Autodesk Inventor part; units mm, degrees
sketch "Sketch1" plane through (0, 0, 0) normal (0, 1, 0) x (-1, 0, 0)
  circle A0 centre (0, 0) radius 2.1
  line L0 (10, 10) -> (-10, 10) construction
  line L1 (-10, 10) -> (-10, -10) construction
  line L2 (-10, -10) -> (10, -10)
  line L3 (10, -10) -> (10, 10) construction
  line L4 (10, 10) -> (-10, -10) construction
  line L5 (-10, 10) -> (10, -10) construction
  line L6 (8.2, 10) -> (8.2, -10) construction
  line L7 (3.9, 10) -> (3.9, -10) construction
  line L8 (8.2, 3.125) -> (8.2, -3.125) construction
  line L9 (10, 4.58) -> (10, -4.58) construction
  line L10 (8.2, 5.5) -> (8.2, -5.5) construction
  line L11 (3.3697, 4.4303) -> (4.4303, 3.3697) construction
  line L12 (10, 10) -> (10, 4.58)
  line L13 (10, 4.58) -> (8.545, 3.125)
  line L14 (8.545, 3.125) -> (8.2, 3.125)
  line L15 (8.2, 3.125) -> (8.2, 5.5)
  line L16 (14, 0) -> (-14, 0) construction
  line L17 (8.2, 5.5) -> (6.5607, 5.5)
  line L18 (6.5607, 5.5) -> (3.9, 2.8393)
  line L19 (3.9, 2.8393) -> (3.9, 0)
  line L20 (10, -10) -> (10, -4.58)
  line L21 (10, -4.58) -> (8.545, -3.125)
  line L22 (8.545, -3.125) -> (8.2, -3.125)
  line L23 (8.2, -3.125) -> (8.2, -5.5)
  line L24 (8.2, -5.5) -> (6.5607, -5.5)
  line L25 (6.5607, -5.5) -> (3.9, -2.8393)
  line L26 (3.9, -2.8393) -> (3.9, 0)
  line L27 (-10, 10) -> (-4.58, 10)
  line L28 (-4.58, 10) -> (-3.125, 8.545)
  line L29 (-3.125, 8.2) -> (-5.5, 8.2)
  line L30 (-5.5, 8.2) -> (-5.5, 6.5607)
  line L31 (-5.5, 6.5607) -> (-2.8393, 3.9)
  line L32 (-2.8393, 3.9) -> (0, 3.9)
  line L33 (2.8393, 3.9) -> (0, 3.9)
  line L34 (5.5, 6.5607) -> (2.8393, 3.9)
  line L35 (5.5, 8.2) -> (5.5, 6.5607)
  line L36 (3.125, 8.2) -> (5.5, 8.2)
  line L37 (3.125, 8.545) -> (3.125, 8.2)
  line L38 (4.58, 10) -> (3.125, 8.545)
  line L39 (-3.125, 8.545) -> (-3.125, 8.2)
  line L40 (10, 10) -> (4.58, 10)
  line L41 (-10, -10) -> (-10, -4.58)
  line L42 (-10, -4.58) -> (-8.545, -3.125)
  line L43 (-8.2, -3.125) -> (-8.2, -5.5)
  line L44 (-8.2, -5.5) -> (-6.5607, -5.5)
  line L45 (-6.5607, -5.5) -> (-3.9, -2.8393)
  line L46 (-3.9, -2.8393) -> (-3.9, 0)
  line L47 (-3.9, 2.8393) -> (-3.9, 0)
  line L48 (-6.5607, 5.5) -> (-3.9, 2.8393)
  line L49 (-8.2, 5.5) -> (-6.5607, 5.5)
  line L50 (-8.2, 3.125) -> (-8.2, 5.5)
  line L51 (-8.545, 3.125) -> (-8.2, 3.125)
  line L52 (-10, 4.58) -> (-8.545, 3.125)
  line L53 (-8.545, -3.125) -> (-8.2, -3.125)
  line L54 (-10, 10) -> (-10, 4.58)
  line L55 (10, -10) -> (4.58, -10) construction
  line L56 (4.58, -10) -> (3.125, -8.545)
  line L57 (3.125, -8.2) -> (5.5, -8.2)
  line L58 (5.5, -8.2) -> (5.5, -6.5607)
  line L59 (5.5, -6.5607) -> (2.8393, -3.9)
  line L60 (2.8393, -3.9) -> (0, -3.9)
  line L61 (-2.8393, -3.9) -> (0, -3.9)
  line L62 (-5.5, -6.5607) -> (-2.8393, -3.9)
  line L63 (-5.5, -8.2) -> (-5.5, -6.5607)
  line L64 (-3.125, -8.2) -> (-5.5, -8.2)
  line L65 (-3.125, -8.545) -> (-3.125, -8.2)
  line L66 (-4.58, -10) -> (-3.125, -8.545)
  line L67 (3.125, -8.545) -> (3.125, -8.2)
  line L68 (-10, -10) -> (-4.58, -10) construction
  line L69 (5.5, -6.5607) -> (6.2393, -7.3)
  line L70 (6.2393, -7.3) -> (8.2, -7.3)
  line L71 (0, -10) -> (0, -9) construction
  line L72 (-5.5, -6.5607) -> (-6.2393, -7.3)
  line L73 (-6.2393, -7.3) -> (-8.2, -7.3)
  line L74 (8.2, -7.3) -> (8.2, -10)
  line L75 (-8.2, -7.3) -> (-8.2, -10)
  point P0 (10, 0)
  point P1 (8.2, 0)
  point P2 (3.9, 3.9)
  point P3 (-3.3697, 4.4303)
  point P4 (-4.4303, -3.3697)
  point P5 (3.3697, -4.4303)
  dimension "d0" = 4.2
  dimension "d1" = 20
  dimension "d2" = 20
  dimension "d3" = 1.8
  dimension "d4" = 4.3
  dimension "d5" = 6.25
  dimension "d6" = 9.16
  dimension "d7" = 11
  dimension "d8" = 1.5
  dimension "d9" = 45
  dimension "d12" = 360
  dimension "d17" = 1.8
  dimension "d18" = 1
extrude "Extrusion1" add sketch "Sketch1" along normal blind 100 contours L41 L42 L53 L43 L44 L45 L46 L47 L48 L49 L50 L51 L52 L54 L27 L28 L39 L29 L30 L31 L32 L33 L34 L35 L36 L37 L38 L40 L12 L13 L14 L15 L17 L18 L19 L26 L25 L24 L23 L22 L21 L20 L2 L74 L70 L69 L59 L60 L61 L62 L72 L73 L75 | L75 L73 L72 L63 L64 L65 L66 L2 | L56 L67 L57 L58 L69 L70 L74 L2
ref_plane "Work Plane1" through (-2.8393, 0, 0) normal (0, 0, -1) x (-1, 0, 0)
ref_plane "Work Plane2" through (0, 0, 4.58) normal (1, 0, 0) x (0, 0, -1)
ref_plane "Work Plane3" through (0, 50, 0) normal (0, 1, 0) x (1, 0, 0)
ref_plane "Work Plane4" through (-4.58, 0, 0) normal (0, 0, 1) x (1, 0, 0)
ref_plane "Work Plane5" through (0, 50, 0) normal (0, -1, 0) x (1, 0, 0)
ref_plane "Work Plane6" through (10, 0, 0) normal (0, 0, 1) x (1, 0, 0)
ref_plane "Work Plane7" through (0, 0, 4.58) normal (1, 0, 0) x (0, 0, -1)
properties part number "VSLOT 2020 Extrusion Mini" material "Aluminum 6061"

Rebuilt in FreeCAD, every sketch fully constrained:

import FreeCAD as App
import Part
import Sketcher
from FreeCAD import Vector
Q = App.Units.Quantity


def add_polygon(sketch, points):
    """Adds a closed chain of lines whose ends are joined by coincident constraints."""
    first, n = sketch.GeometryCount, len(points)
    for a, b in zip(points, points[1:] + points[:1]):
        sketch.addGeometry(Part.LineSegment(App.Vector(*a, 0), App.Vector(*b, 0)), False)
    for i in range(n):
        sketch.addConstraint(Sketcher.Constraint("Coincident", first + i, 2, first + (i + 1) % n, 1))

doc = App.newDocument("Part")
body = doc.addObject("PartDesign::Body", "Body")

# Sketch on XZ plane
sketch1 = body.newObject("Sketcher::SketchObject", "Sketch")
sketch1.AttachmentSupport = (doc.getObject("XZ_Plane"), [""])
sketch1.MapMode = "FlatFace"
add_polygon(sketch1, [(10, -4.58), (10, -10), (4.58, -10), (3.125, -8.545), (3.125, -8.2), (5.5, -8.2), (5.5, -6.5607), (2.8393, -3.9), (-2.8393, -3.9), (-5.5, -6.5607), (-5.5, -8.2), (-3.125, -8.2), (-3.125, -8.545), (-4.58, -10), (-10, -10), (-10, -4.58), (-8.545, -3.125), (-8.2, -3.125), (-8.2, -5.5), (-6.5607, -5.5), (-3.9, -2.8393), (-3.9, 2.8393), (-6.5607, 5.5), (-8.2, 5.5), (-8.2, 3.125), (-8.545, 3.125), (-10, 4.58), (-10, 10), (-4.58, 10), (-3.125, 8.545), (-3.125, 8.2), (-5.5, 8.2), (-5.5, 6.5607), (-2.8393, 3.9), (2.8393, 3.9), (5.5, 6.5607), (5.5, 8.2), (3.125, 8.2), (3.125, 8.545), (4.58, 10), (10, 10), (10, 4.58), (8.545, 3.125), (8.2, 3.125), (8.2, 5.5), (6.5607, 5.5), (3.9, 2.8393), (3.9, -2.8393), (6.5607, -5.5), (8.2, -5.5), (8.2, -3.125), (8.545, -3.125)])  # lines 0-51
sketch1.addGeometry(Part.Circle(Vector(0, 0, 0), Vector(0, 0, 1), 2.1), False)  # 52
sketch1.addConstraint([
    Sketcher.Constraint("Vertical", 0),
    Sketcher.Constraint("Horizontal", 1),
    Sketcher.Constraint("Vertical", 3),
    Sketcher.Constraint("Horizontal", 4),
    Sketcher.Constraint("Vertical", 5),
    Sketcher.Constraint("Horizontal", 7),
    Sketcher.Constraint("Vertical", 9),
    Sketcher.Constraint("Horizontal", 10),
    Sketcher.Constraint("Vertical", 11),
    Sketcher.Constraint("Horizontal", 13),
    Sketcher.Constraint("Vertical", 14),
    Sketcher.Constraint("Horizontal", 16),
    Sketcher.Constraint("Vertical", 17),
    Sketcher.Constraint("Horizontal", 18),
    Sketcher.Constraint("Vertical", 20),
    Sketcher.Constraint("Horizontal", 22),
    Sketcher.Constraint("Vertical", 23),
    Sketcher.Constraint("Horizontal", 24),
    Sketcher.Constraint("Vertical", 26),
    Sketcher.Constraint("Horizontal", 27),
    Sketcher.Constraint("Vertical", 29),
    Sketcher.Constraint("Horizontal", 30),
    Sketcher.Constraint("Vertical", 31),
    Sketcher.Constraint("Horizontal", 33),
    Sketcher.Constraint("Vertical", 35),
    Sketcher.Constraint("Horizontal", 36),
    Sketcher.Constraint("Vertical", 37),
    Sketcher.Constraint("Horizontal", 39),
    Sketcher.Constraint("Vertical", 40),
    Sketcher.Constraint("Horizontal", 42),
    Sketcher.Constraint("Vertical", 43),
    Sketcher.Constraint("Horizontal", 44),
    Sketcher.Constraint("Vertical", 46),
    Sketcher.Constraint("Horizontal", 48),
    Sketcher.Constraint("Vertical", 49),
    Sketcher.Constraint("Horizontal", 50),
    Sketcher.Constraint("Coincident", 52, 3, -1, 1),
    Sketcher.Constraint("Symmetric", 0, 2, 26, 2, -1, 1),
    Sketcher.Constraint("Symmetric", 2, 2, 28, 2, -1, 1),
    Sketcher.Constraint("Symmetric", 4, 2, 30, 2, -1, 1),
    Sketcher.Constraint("Symmetric", 6, 2, 32, 2, -1, 1),
    Sketcher.Constraint("Symmetric", 8, 2, 34, 2, -1, 1),
    Sketcher.Constraint("Symmetric", 10, 2, 36, 2, -1, 1),
    Sketcher.Constraint("Symmetric", 12, 2, 38, 2, -1, 1),
    Sketcher.Constraint("Symmetric", 14, 2, 40, 2, -1, 1),
    Sketcher.Constraint("Symmetric", 15, 2, 41, 2, -1, 1),
    Sketcher.Constraint("Symmetric", 17, 2, 43, 2, -1, 1),
    Sketcher.Constraint("Symmetric", 19, 2, 45, 2, -1, 1),
    Sketcher.Constraint("Symmetric", 21, 2, 47, 2, -1, 1),
    Sketcher.Constraint("Symmetric", 23, 2, 49, 2, -1, 1),
    Sketcher.Constraint("Symmetric", 5, 2, 8, 2, -2),
    Sketcher.Constraint("Symmetric", 3, 2, 10, 2, -2),
    Sketcher.Constraint("Symmetric", 1, 2, 12, 2, -2),
    Sketcher.Constraint("Symmetric", 25, 2, 40, 2, -2),
    Sketcher.Constraint("Symmetric", 24, 2, 41, 2, -2),
    Sketcher.Constraint("Symmetric", 22, 2, 43, 2, -2),
    Sketcher.Constraint("Parallel", 2, 6),
    Sketcher.Constraint("Perpendicular", 6, 8),
    Sketcher.Constraint("Parallel", 8, 12),
    Sketcher.Constraint("Parallel", 12, 15),
    Sketcher.Constraint("Parallel", 15, 19),
    Sketcher.Constraint("Perpendicular", 19, 21),
    Sketcher.Constraint("Parallel", 21, 25),
    Sketcher.Constraint("Parallel", 25, 28),
    Sketcher.Constraint("Parallel", 28, 32),
    Sketcher.Constraint("Perpendicular", 32, 34),
    Sketcher.Constraint("Parallel", 34, 38),
    Sketcher.Constraint("Parallel", 41, 45),
    Sketcher.Constraint("Perpendicular", 45, 47),
    Sketcher.Constraint("Parallel", 47, 51),
    Sketcher.Constraint("Horizontal", 20, 2, 45, 2),
    Sketcher.Constraint("Horizontal", 14, 2, 51, 2),
    Sketcher.Constraint("Equal", 39, 0),
    Sketcher.Constraint("Equal", 50, 3),
    Sketcher.Constraint("Equal", 48, 5),
    Sketcher.Constraint("Equal", 36, 17),
    Sketcher.Constraint("Equal", 33, 20),
    Sketcher.Constraint("Equal", 12, 15),
    Sketcher.Constraint("Equal", 8, 19),
    Sketcher.Constraint("Diameter", 52, 4.2),
    Sketcher.Constraint("DistanceY", 3, 2, 6, 2, Q("0.1693 in")),
    Sketcher.Constraint("DistanceY", 1, 2, 3, 2, 1.8),
    Sketcher.Constraint("DistanceX", 10, 2, 3, 2, 6.25),
    Sketcher.Constraint("Distance", 2, Q("0.081 in")),
    Sketcher.Constraint("DistanceX", 4, 1, 4, 2, Q("0.0935 in")),
    Sketcher.Constraint("DistanceY", 2, 2, 5, 2, Q("0.078122 in")),
    Sketcher.Constraint("DistanceX", 8, 2, 19, 2, Q("0.063 in")),
])
pad1 = body.newObject("PartDesign::Pad", "Pad")
pad1.Profile = sketch1
pad1.Length = Q("3.9370079 in")
pad1.Reversed = True

doc.recompute()
